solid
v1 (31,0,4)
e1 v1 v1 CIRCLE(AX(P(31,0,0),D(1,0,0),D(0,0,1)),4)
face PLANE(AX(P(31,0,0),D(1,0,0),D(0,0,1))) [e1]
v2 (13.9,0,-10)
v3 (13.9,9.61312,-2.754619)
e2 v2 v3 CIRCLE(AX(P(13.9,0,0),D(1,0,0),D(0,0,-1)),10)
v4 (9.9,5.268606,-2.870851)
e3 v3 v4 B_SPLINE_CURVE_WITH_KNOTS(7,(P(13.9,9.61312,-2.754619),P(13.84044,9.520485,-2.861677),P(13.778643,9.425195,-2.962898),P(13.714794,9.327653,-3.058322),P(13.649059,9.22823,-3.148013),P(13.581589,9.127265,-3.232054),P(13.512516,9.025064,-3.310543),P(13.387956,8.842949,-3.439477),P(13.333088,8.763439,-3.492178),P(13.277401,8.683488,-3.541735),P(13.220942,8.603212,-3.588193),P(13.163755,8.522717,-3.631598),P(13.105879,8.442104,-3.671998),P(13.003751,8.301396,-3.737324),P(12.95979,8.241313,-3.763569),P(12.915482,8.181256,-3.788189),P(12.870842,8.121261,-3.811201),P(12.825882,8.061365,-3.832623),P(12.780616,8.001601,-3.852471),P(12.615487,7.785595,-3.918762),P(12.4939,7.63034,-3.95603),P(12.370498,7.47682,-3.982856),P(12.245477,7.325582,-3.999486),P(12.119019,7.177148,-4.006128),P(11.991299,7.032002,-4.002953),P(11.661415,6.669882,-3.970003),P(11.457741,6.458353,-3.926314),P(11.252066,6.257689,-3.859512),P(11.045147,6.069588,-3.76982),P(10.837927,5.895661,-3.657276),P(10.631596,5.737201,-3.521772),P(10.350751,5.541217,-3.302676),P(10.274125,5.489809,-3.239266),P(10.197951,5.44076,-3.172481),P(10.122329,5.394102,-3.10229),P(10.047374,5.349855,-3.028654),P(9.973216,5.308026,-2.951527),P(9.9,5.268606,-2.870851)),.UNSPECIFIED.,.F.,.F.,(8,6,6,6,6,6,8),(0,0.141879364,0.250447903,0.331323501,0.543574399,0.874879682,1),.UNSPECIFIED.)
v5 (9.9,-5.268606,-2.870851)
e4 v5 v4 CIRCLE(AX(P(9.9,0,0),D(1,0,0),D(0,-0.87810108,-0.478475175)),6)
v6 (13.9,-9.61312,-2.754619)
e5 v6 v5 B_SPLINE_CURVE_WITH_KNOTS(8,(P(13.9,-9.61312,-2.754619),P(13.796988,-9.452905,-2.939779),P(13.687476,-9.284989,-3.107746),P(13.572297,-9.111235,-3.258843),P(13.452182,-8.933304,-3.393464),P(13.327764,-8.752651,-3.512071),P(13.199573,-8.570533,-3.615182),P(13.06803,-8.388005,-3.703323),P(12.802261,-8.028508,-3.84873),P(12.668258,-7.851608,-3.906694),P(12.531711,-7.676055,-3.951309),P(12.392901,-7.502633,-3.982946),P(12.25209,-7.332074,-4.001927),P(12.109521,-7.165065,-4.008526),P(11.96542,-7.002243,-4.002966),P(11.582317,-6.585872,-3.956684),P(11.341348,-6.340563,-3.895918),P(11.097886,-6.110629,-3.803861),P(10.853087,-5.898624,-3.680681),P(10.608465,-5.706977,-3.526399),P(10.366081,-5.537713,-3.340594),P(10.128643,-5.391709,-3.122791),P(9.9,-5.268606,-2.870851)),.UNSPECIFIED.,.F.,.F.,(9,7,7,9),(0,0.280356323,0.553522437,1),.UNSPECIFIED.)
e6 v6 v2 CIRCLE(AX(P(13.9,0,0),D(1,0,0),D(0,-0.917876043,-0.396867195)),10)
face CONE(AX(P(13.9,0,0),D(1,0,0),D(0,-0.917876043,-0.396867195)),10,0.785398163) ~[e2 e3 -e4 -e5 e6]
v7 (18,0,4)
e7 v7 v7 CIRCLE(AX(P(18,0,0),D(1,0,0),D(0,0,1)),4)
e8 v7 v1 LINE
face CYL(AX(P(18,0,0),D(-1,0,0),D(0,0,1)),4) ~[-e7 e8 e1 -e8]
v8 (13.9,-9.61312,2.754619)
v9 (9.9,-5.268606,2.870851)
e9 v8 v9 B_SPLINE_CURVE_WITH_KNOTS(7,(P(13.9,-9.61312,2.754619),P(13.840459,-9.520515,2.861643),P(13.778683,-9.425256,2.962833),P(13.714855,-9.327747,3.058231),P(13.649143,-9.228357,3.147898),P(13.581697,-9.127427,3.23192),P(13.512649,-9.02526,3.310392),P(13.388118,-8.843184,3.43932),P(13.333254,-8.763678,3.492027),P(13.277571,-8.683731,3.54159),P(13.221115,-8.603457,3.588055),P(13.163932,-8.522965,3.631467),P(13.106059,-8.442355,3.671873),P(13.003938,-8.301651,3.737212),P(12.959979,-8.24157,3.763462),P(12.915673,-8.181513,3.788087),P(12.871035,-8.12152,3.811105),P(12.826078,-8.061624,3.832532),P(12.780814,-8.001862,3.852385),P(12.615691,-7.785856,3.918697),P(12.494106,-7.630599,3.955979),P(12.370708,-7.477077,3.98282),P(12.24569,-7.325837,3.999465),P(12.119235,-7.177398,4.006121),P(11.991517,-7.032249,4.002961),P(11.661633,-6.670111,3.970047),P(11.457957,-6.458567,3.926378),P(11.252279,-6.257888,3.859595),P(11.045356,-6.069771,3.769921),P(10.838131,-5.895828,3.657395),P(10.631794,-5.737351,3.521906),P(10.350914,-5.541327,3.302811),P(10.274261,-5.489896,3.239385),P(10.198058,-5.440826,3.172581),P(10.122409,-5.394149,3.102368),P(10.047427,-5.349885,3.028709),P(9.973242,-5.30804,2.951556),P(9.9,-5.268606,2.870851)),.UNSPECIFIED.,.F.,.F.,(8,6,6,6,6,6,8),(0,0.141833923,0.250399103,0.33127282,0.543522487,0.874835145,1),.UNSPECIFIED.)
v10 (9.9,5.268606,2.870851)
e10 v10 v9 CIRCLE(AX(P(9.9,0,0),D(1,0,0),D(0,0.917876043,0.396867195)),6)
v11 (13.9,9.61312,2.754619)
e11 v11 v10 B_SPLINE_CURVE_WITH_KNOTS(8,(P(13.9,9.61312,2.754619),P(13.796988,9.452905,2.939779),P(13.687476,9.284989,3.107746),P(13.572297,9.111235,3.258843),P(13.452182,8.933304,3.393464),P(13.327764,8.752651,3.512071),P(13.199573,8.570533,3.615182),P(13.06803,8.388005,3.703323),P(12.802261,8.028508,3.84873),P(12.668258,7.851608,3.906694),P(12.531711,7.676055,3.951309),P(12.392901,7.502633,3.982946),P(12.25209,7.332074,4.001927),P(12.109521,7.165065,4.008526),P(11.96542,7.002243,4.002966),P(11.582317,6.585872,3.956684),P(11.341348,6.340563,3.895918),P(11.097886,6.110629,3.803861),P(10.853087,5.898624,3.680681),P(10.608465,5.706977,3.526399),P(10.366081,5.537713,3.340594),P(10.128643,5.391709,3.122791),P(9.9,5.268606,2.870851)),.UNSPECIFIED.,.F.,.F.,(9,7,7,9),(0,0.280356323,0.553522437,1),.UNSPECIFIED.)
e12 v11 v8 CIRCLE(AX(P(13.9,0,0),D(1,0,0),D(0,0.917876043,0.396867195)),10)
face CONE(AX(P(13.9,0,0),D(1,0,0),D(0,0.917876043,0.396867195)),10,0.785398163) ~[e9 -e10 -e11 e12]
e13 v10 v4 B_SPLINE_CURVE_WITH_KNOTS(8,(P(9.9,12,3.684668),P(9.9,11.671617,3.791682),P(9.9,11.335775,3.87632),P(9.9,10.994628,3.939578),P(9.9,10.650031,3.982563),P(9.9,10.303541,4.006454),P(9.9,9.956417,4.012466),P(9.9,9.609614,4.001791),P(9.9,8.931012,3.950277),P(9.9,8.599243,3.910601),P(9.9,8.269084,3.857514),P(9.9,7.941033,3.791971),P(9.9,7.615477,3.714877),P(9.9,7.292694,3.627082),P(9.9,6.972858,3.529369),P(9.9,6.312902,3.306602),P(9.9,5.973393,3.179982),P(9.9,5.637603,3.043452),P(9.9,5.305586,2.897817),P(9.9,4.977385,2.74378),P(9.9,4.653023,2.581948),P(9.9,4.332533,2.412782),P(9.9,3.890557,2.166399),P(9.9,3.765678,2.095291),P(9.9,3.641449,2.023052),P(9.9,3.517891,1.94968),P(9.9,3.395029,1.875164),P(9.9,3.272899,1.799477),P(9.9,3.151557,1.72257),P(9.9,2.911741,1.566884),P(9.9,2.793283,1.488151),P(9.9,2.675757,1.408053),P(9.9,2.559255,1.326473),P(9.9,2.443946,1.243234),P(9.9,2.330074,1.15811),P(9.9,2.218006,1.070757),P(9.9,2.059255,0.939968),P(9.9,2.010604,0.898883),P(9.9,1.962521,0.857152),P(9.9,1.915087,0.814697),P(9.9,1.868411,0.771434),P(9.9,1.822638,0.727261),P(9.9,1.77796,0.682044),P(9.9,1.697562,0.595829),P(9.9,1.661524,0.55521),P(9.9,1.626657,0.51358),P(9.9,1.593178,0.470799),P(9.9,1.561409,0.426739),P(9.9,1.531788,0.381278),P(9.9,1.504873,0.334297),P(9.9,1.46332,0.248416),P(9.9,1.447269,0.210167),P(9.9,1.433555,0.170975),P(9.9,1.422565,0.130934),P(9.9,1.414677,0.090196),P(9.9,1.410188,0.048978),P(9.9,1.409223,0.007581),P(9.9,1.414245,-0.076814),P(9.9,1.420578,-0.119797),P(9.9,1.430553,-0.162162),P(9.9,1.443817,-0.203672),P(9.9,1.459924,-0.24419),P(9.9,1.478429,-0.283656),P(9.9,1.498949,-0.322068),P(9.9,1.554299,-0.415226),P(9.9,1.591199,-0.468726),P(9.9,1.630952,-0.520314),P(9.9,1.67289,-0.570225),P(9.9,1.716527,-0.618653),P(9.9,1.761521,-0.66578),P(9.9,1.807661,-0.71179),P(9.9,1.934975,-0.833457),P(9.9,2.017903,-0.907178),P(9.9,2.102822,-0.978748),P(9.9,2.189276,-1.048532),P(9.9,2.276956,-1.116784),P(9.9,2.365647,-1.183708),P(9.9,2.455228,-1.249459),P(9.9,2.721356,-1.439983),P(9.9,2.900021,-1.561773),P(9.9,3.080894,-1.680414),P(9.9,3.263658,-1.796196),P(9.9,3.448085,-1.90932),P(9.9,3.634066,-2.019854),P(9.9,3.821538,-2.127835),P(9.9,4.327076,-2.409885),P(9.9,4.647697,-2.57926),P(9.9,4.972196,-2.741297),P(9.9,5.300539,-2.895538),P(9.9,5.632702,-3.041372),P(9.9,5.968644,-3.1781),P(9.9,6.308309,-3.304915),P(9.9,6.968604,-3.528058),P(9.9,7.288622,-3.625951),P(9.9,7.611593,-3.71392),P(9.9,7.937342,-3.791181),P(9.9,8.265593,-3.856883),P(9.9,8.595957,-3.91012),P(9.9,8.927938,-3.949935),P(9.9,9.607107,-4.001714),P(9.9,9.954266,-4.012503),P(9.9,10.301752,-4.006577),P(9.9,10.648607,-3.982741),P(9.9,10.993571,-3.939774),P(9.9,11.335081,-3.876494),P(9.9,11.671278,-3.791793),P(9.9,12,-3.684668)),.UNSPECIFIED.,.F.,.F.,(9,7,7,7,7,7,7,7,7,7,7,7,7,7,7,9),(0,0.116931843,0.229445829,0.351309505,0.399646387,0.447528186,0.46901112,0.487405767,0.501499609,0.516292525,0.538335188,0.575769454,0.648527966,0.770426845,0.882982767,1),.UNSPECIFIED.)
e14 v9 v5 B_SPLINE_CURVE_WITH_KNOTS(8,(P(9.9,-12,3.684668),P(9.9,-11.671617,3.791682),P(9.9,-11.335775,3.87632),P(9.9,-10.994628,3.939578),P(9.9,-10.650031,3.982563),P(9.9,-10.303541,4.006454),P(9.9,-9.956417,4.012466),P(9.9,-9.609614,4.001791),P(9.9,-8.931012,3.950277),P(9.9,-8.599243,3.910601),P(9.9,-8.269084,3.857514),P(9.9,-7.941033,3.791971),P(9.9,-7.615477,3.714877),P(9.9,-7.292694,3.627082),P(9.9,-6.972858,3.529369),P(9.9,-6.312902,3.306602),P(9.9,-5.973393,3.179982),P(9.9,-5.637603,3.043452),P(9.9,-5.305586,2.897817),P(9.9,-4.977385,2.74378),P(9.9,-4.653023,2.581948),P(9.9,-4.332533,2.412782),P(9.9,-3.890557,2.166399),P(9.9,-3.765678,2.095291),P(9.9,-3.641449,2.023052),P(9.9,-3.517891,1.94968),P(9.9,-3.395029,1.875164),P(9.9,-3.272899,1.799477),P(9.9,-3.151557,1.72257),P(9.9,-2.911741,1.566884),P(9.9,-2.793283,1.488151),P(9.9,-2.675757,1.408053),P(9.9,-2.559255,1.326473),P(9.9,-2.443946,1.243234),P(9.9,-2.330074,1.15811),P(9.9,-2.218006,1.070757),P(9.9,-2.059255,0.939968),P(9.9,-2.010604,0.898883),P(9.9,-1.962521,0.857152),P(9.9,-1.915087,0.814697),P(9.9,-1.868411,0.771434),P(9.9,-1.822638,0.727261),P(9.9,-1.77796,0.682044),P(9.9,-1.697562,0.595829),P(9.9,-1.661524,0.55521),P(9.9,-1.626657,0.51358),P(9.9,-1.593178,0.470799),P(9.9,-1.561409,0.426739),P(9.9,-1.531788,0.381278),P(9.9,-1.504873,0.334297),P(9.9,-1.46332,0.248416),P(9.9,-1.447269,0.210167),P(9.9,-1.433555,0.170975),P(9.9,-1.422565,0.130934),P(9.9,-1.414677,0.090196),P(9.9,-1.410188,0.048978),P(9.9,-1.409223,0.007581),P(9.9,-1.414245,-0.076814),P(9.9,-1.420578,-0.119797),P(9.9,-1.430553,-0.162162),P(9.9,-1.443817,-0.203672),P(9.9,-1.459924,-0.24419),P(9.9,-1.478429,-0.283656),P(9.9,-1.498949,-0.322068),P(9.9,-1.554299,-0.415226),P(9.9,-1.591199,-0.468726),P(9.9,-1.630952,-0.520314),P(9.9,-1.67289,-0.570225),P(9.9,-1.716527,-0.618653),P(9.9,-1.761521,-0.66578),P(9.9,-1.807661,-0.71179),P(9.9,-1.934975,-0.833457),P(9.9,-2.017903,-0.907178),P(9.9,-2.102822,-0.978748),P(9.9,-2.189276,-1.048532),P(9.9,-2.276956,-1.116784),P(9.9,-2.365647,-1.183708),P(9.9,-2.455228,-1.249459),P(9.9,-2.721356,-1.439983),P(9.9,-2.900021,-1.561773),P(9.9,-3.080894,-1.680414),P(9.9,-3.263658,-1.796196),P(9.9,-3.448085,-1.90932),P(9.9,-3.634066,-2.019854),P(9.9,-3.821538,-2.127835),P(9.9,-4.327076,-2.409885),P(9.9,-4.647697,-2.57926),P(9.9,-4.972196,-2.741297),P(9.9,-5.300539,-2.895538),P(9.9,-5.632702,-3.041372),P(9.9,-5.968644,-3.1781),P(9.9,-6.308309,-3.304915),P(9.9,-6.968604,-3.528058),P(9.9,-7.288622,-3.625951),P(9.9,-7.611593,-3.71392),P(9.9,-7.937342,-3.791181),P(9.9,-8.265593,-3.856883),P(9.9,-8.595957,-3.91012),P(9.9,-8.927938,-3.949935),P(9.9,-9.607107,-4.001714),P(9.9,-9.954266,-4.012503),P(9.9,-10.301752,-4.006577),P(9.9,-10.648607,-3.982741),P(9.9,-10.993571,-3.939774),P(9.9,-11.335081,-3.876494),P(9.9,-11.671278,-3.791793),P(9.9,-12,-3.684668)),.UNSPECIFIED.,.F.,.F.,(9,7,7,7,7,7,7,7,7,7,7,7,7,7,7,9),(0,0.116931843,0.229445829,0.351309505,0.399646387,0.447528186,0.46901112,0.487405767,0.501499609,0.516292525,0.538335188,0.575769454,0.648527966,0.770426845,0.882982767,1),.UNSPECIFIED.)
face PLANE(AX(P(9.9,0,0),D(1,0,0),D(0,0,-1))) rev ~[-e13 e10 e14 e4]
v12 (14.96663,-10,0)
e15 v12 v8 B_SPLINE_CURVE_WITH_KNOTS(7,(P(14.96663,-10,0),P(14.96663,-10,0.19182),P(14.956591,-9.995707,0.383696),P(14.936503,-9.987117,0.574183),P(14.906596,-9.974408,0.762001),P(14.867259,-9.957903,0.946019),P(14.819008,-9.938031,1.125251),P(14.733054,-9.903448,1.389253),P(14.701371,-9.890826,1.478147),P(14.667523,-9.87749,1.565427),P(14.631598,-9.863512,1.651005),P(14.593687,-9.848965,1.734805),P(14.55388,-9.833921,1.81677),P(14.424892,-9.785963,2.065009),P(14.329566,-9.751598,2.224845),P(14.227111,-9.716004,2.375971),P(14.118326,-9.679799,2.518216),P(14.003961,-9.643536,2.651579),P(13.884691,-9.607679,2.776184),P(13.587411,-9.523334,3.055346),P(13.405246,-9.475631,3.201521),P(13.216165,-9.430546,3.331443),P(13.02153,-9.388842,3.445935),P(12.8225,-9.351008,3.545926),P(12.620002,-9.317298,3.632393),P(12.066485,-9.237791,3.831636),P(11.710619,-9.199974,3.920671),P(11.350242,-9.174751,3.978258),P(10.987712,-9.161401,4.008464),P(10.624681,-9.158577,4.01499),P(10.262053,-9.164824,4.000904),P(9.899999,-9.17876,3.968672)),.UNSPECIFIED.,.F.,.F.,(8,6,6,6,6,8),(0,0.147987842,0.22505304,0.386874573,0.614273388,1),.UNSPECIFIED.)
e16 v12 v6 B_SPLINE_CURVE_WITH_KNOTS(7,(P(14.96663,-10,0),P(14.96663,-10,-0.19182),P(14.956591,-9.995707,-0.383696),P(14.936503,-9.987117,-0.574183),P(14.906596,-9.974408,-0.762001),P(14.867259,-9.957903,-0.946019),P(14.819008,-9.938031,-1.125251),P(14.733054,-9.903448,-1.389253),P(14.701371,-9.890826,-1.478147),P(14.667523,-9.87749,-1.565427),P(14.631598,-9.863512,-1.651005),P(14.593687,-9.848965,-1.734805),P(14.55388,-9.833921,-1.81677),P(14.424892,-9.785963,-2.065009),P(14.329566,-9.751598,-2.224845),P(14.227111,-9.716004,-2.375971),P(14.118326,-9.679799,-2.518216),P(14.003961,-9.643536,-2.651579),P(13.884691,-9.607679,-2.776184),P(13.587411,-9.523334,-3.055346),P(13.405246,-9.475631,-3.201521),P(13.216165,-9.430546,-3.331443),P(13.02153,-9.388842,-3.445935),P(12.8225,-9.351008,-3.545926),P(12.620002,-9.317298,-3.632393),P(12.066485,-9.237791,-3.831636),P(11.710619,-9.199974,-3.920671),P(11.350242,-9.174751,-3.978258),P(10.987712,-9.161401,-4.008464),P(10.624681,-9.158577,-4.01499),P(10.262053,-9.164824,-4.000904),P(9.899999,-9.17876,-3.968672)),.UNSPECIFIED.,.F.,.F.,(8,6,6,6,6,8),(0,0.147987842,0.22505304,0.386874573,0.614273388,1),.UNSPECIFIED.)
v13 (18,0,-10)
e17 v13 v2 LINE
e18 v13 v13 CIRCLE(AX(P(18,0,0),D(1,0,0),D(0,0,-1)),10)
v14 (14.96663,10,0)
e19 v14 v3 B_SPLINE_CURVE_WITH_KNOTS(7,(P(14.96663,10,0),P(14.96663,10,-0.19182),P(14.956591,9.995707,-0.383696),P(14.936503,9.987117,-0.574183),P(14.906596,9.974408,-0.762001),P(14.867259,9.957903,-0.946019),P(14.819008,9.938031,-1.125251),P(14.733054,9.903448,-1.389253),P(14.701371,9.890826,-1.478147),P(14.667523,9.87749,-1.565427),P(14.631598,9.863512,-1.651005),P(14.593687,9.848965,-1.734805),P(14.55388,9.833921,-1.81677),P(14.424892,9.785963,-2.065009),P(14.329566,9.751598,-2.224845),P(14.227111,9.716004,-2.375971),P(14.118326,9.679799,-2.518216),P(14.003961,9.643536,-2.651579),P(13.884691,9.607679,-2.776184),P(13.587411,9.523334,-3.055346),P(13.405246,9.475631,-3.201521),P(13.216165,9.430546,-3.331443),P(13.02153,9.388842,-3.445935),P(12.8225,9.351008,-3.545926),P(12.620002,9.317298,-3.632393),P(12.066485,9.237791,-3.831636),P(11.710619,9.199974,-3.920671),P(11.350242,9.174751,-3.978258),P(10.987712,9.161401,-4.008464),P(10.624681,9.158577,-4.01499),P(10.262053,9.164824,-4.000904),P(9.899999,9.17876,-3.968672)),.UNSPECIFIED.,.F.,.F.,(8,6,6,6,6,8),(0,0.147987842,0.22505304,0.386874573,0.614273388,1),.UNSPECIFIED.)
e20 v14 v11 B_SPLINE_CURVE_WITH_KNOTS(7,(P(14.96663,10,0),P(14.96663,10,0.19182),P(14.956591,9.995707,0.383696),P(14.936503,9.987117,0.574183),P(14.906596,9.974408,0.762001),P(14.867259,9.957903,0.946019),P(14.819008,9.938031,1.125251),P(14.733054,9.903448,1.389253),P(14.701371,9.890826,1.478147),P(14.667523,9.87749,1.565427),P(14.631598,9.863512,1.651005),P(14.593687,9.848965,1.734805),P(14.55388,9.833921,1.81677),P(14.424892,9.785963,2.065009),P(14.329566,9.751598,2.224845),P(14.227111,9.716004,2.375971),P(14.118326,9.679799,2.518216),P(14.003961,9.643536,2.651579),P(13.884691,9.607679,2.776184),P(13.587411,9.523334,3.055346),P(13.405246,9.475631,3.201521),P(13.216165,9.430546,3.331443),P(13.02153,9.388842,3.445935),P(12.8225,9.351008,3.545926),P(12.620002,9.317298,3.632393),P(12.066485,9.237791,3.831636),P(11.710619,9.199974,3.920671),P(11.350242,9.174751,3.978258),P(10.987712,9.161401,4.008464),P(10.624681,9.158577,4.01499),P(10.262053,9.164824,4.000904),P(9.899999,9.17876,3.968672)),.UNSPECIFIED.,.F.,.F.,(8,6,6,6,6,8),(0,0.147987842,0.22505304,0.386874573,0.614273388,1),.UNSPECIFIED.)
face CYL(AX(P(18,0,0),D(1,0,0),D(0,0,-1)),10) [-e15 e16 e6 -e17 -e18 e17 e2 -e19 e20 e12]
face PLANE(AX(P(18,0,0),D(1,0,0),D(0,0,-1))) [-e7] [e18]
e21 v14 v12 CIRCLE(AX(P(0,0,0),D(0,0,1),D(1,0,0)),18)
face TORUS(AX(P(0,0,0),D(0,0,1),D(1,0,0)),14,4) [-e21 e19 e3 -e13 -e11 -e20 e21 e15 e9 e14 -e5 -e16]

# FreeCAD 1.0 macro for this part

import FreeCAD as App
import Part
import Sketcher
Q = App.Units.Quantity


def edges_at(feature, points):
    """Names of the edges that pass closest to the given points."""
    edges = feature.Shape.Edges
    near = lambda p: min(range(len(edges)), key=lambda i: edges[i].distToShape(Part.Vertex(*p))[0])
    return sorted({f"Edge{near(p) + 1}" for p in points})

doc = App.newDocument("Part")
body = doc.addObject("PartDesign::Body", "Body")

# Sketch on XZ plane
sketch1 = body.newObject("Sketcher::SketchObject", "Sketch")
sketch1.AttachmentSupport = (doc.getObject("XZ_Plane"), [""])
sketch1.MapMode = "FlatFace"
sketch1.addGeometry(Part.Circle(App.Vector(14, 0, 0), App.Vector(0, 0, 1), 4), False)
sketch1.addConstraint(Sketcher.Constraint("PointOnObject", 0, 3, -1))
sketch1.addConstraint(Sketcher.Constraint("Diameter", 0, Q("8 mm")))
sketch1.addConstraint(Sketcher.Constraint("DistanceX", -1, 1, 0, 3, Q("14 mm")))

# Sketch on XY plane
sketch2 = body.newObject("Sketcher::SketchObject", "Sketch001")
sketch2.AttachmentSupport = (doc.getObject("XY_Plane"), [""])
sketch2.MapMode = "FlatFace"
sketch2.addGeometry(Part.Circle(App.Vector(0, 0, 0), App.Vector(0, 0, 1), 14), False)
sketch2.addConstraint(Sketcher.Constraint("Coincident", 0, 3, -1, 1))
sketch2.addConstraint(Sketcher.Constraint("Diameter", 0, Q("28 mm")))
doc.recompute()

additivepipe = body.newObject("PartDesign::AdditivePipe", "AdditivePipe")
additivepipe.Profile = sketch1
additivepipe.Spine = (sketch2, ["Edge1"])

# Sketch on YZ plane
sketch3 = body.newObject("Sketcher::SketchObject", "Sketch002")
sketch3.AttachmentSupport = (doc.getObject("YZ_Plane"), [""])
sketch3.MapMode = "FlatFace"
sketch3.AttachmentOffset = App.Placement(App.Vector(0, 0, 18), App.Rotation())
sketch3.addGeometry(Part.Circle(App.Vector(0, 0, 0), App.Vector(0, 0, 1), 10), False)
sketch3.addConstraint(Sketcher.Constraint("Coincident", 0, 3, -1, 1))
sketch3.addConstraint(Sketcher.Constraint("Diameter", 0, Q("20 mm")))
pad1 = body.newObject("PartDesign::Pad", "Pad")
pad1.Profile = sketch3
pad1.Length = 8.1
pad1.Reversed = True
doc.recompute()

chamfer = body.newObject("PartDesign::Chamfer", "Chamfer")
chamfer.Base = (pad1, edges_at(pad1, [(9.9, 0, 10), (9.9, 5.492, -8.357)]))
chamfer.Size = 4

# Sketch on YZ plane
sketch4 = body.newObject("Sketcher::SketchObject", "Sketch003")
sketch4.AttachmentSupport = (doc.getObject("YZ_Plane"), [""])
sketch4.MapMode = "FlatFace"
sketch4.AttachmentOffset = App.Placement(App.Vector(0, 0, 18), App.Rotation())
sketch4.addGeometry(Part.Circle(App.Vector(0, 0, 0), App.Vector(0, 0, 1), 4), False)
sketch4.addConstraint(Sketcher.Constraint("Coincident", 0, 3, -1, 1))
sketch4.addConstraint(Sketcher.Constraint("Diameter", 0, Q("8 mm")))
pad2 = body.newObject("PartDesign::Pad", "Pad001")
pad2.Profile = sketch4
pad2.Length = 13

doc.recompute()
